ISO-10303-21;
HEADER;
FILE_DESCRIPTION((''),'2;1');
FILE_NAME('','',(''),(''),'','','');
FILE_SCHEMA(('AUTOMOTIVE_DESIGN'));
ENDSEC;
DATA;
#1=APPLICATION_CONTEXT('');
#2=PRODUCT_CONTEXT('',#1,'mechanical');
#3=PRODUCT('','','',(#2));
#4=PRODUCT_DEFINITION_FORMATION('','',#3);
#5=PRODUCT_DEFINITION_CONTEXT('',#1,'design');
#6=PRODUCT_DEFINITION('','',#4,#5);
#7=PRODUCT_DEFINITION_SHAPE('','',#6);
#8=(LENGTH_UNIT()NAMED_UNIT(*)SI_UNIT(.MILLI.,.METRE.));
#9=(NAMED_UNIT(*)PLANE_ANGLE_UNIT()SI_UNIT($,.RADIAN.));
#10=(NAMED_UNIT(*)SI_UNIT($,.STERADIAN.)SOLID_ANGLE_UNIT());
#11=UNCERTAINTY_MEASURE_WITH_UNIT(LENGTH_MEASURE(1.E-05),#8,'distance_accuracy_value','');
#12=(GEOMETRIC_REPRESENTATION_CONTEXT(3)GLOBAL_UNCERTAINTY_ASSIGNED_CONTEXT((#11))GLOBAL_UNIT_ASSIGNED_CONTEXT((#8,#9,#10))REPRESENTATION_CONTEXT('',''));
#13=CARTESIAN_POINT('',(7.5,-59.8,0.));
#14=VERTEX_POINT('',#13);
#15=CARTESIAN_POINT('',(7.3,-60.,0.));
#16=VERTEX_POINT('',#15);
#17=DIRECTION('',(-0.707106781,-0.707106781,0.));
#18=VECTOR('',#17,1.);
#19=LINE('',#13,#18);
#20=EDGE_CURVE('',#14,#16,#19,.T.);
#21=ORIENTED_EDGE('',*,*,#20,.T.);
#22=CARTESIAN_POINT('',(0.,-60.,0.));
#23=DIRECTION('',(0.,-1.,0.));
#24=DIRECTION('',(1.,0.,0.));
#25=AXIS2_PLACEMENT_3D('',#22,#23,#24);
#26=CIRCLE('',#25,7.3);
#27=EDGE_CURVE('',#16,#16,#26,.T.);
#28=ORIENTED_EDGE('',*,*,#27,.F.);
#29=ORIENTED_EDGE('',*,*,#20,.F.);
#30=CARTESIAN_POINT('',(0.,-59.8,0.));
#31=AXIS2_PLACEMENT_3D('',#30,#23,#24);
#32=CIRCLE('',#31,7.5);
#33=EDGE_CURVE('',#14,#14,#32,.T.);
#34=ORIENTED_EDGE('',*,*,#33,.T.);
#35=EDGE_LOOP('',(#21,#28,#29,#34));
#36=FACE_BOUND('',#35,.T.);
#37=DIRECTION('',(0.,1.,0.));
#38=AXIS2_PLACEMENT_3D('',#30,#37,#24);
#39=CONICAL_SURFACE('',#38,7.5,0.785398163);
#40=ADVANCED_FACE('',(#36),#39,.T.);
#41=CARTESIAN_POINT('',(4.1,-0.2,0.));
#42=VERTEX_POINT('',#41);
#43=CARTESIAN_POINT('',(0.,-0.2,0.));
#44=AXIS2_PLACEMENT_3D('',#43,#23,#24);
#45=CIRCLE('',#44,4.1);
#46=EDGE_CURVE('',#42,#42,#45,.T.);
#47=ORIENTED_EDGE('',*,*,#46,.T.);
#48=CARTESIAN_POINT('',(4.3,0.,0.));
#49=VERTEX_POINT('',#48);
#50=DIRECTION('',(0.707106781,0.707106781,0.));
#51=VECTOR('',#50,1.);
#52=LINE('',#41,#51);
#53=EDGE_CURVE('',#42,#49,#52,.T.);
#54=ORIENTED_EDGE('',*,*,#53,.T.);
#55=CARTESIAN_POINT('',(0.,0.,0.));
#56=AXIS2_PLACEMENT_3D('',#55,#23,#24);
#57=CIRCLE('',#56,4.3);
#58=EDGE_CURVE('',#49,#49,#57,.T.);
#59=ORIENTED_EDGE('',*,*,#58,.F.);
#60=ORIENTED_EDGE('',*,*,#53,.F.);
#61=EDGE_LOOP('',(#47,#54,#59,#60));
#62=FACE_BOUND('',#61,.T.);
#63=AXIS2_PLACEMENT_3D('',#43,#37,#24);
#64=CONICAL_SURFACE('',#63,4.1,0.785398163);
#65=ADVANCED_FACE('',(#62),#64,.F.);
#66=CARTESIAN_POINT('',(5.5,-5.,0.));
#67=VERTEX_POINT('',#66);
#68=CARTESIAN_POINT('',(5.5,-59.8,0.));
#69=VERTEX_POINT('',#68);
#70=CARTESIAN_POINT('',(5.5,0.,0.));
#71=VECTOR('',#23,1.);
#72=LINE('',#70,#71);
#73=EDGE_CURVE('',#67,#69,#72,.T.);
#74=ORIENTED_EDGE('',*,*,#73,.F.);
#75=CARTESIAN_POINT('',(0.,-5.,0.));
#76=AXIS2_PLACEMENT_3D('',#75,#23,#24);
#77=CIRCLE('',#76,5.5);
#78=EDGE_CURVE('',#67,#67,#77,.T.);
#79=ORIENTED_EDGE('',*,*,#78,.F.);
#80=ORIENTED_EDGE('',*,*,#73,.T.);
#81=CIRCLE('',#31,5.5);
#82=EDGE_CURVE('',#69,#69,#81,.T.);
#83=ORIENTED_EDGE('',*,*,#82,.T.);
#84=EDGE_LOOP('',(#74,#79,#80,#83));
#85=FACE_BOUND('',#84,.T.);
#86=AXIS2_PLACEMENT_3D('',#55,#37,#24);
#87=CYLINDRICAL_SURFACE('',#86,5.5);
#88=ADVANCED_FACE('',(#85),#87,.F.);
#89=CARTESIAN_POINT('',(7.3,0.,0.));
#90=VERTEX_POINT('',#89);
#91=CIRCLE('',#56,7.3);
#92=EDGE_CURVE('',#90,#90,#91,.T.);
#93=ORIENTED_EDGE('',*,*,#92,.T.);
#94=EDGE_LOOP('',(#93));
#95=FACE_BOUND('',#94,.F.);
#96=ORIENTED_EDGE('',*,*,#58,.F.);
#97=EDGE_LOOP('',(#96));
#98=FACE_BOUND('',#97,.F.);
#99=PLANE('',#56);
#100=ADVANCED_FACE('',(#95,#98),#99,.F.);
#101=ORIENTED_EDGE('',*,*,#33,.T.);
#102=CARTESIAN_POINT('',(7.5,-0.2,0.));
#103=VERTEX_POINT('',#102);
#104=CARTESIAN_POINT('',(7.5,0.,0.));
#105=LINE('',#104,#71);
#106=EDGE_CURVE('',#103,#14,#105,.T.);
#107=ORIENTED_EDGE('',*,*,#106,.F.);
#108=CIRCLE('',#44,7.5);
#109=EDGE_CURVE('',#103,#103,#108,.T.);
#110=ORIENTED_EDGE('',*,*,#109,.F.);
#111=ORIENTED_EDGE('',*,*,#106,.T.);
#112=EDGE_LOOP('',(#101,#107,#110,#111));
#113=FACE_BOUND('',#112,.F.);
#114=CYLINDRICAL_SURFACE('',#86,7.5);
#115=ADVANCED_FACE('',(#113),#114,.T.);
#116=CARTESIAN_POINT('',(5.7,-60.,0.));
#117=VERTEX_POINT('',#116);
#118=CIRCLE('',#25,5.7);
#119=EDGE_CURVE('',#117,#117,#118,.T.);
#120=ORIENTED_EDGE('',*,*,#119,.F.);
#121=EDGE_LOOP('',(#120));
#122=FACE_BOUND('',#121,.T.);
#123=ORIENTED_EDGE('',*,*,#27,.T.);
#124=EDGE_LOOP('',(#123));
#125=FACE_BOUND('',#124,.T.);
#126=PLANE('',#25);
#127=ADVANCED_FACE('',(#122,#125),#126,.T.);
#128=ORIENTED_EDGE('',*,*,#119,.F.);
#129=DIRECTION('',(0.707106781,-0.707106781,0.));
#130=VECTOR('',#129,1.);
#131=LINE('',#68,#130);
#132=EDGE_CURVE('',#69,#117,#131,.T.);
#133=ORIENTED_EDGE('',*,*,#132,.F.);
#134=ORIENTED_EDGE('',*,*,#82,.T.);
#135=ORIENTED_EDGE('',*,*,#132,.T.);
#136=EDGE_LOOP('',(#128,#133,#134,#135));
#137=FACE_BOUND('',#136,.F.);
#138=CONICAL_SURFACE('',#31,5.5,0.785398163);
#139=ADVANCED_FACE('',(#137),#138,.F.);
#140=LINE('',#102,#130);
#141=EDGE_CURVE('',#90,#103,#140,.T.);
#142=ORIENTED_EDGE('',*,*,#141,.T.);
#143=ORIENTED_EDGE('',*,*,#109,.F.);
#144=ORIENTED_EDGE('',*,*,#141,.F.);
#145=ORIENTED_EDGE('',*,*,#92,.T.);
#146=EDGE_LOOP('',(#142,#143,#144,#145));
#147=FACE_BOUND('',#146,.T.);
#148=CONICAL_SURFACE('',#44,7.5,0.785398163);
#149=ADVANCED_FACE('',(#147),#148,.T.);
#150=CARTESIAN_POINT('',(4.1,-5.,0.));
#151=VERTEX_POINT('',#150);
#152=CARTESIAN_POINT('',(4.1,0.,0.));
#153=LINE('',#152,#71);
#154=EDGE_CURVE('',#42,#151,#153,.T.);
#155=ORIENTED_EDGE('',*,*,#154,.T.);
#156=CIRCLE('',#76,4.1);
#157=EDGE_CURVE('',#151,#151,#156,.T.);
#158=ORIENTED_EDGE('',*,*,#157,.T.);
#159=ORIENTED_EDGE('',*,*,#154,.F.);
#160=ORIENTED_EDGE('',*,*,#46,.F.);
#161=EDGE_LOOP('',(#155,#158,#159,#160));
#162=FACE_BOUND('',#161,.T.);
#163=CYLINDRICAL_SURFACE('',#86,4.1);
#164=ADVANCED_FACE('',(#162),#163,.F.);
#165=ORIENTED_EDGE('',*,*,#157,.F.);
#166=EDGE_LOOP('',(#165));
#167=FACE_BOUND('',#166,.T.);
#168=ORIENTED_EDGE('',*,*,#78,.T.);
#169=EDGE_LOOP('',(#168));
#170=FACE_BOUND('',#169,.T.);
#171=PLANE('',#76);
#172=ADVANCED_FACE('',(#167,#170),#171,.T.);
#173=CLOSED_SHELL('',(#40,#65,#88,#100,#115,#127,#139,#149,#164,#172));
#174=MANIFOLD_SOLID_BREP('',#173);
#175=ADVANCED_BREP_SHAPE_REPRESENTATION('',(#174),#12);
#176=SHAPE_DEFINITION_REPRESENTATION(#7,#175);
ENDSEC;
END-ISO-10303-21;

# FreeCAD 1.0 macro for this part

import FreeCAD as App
import Part
import Sketcher
from FreeCAD import Vector


def edges_at(feature, points):
    """Names of the edges that pass closest to the given points."""
    edges = feature.Shape.Edges
    near = lambda p: min(range(len(edges)), key=lambda i: edges[i].distToShape(Part.Vertex(*p))[0])
    return sorted({f"Edge{near(p) + 1}" for p in points})

doc = App.newDocument("Part")
body = doc.addObject("PartDesign::Body", "Body")

# Sketch on XZ plane
sketch1 = body.newObject("Sketcher::SketchObject", "Sketch")
sketch1.AttachmentSupport = (doc.getObject("XZ_Plane"), [""])
sketch1.MapMode = "FlatFace"
sketch1.addGeometry(Part.Circle(Vector(0, 0, 0), Vector(0, 0, 1), 7.5), False)
sketch1.addGeometry(Part.Circle(Vector(0, 0, 0), Vector(0, 0, 1), 5.5), False)
sketch1.addConstraint(Sketcher.Constraint("Coincident", 0, 3, -1, 1))
sketch1.addConstraint(Sketcher.Constraint("Coincident", 1, 3, -1, 1))
sketch1.addConstraint(Sketcher.Constraint("Diameter", 0, 15.0))
sketch1.addConstraint(Sketcher.Constraint("Diameter", 1, 11.0))
pad1 = body.newObject("PartDesign::Pad", "Pad")
pad1.Profile = sketch1
pad1.Length = 60

# Sketch on XZ plane
sketch2 = body.newObject("Sketcher::SketchObject", "Sketch001")
sketch2.AttachmentSupport = (doc.getObject("XZ_Plane"), [""])
sketch2.MapMode = "FlatFace"
sketch2.addGeometry(Part.Circle(Vector(0, 0, 0), Vector(0, 0, 1), 5.5), False)
sketch2.addGeometry(Part.Circle(Vector(0, 0, 0), Vector(0, 0, 1), 4.1), False)
sketch2.addConstraint(Sketcher.Constraint("Coincident", 0, 3, -1, 1))
sketch2.addConstraint(Sketcher.Constraint("Coincident", 1, 3, -1, 1))
sketch2.addConstraint(Sketcher.Constraint("Diameter", 0, 11.0))
sketch2.addConstraint(Sketcher.Constraint("Diameter", 1, 8.2))
pad2 = body.newObject("PartDesign::Pad", "Pad001")
pad2.Profile = sketch2
pad2.Length = 5
doc.recompute()

chamfer = body.newObject("PartDesign::Chamfer", "Chamfer")
chamfer.Base = (pad2, edges_at(pad2, [
    (-7.5, 0, 0),
    (-4.1, 0, 0),
    (-7.5, -60, 0),
    (-5.5, -60, 0),
]))
chamfer.Size = 0.2

doc.recompute()
